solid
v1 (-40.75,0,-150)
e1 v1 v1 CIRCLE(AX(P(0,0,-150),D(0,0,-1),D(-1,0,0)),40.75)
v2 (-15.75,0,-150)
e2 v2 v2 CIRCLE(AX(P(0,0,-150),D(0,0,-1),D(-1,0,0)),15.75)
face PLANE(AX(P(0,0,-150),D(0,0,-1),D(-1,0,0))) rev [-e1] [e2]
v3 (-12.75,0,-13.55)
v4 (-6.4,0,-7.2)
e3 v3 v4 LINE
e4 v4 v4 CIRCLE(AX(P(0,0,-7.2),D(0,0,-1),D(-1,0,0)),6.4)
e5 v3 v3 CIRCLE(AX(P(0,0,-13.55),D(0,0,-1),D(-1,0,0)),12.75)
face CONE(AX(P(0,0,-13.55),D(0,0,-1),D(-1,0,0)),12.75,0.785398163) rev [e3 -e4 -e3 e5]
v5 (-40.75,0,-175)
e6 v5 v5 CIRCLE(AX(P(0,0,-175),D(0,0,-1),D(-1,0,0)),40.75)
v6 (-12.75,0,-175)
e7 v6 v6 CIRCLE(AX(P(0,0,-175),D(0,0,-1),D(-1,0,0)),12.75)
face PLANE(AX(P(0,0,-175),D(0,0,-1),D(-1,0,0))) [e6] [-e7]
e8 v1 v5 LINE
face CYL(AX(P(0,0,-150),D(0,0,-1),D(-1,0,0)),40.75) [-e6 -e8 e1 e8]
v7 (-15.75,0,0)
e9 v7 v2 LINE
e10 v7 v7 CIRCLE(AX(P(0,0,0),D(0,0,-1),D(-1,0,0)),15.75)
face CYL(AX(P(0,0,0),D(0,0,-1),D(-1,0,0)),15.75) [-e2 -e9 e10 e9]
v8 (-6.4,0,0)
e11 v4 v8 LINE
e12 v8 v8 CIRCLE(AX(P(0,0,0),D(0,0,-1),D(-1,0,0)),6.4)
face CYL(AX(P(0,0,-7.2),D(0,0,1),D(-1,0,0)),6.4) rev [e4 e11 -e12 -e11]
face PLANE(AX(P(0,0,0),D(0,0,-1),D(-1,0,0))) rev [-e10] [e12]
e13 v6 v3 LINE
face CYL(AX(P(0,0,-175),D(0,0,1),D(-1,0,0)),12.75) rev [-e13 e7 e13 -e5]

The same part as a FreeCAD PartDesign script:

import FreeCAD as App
import Part
import Sketcher

V = App.Vector
Q = App.Units.Quantity

doc = App.newDocument("Part")
params = doc.addObject("Spreadsheet::Sheet", "Params")
for row, (alias, value) in enumerate([
    ("sketch1_width", "25 mm"),
    ("sketch1_width2", "28 mm"),
    ("sketch1_height", "150 mm"),
    ("sketch1_height2", "7.2 mm"),
    ("sketch1_width3", "9.35 mm"),
    ("revolution_angle", "360 deg"),
], start=1):
    params.set(f"A{row}", alias)
    params.set(f"B{row}", "=" + value)
    params.setAlias(f"B{row}", alias)

body = doc.addObject("PartDesign::Body", "Body")

sketch1 = body.newObject("Sketcher::SketchObject", "Sketch")
sketch1.AttachmentSupport = (doc.getObject("XZ_Plane"), [""])
sketch1.MapMode = "FlatFace"
sketch1.addGeometry([
    Part.LineSegment(V(16, 150, 0), V(41, 150, 0)),
    Part.LineSegment(V(41, 150, 0), V(41, 175, 0)),
    Part.LineSegment(V(41, 175, 0), V(13, 175, 0)),
    Part.LineSegment(V(13, 175, 0), V(13, 14, 0)),
    Part.LineSegment(V(13, 14, 0), V(6, 7, 0)),
    Part.LineSegment(V(6, 7, 0), V(6, 0, 0)),
    Part.LineSegment(V(6, 0, 0), V(16, 0, 0)),
    Part.LineSegment(V(16, 0, 0), V(16, 150, 0)),
], False)
sketch1.addConstraint([
    Sketcher.Constraint("Coincident", 0, 2, 1, 1),
    Sketcher.Constraint("Coincident", 1, 2, 2, 1),
    Sketcher.Constraint("Coincident", 2, 2, 3, 1),
    Sketcher.Constraint("Coincident", 3, 2, 4, 1),
    Sketcher.Constraint("Coincident", 4, 2, 5, 1),
    Sketcher.Constraint("Coincident", 5, 2, 6, 1),
    Sketcher.Constraint("Coincident", 6, 2, 7, 1),
    Sketcher.Constraint("Coincident", 7, 2, 0, 1),
    Sketcher.Constraint("Horizontal", 0),
    Sketcher.Constraint("Vertical", 1),
    Sketcher.Constraint("Horizontal", 2),
    Sketcher.Constraint("Vertical", 3),
    Sketcher.Constraint("Vertical", 5),
    Sketcher.Constraint("Horizontal", 6),
    Sketcher.Constraint("Vertical", 7),
    Sketcher.Constraint("PointOnObject", 5, 2, -1),
    Sketcher.Constraint("Equal", 0, 1),
    Sketcher.Constraint("DistanceX", 0, 1, 0, 2, 25.0),
    Sketcher.Constraint("DistanceX", 2, 2, 2, 1, 28.0),
    Sketcher.Constraint("DistanceY", 7, 1, 7, 2, 150.0),
    Sketcher.Constraint("Angle", 4, Q("-135 deg")),
    Sketcher.Constraint("DistanceY", 5, 2, 5, 1, 7.2),
    Sketcher.Constraint("DistanceX", 6, 1, 6, 2, 9.35),
    Sketcher.Constraint("DistanceX", -1, 1, 4, 2, 6.4),
])
sketch1.setExpression("Constraints[17]", "Params.sketch1_width")
sketch1.setExpression("Constraints[18]", "Params.sketch1_width2")
sketch1.setExpression("Constraints[19]", "Params.sketch1_height")
sketch1.setExpression("Constraints[21]", "Params.sketch1_height2")
sketch1.setExpression("Constraints[22]", "Params.sketch1_width3")
revolution = body.newObject("PartDesign::Revolution", "Revolution")
revolution.Profile = sketch1
revolution.ReferenceAxis = (sketch1, ["V_Axis"])
revolution.setExpression("Angle", "Params.revolution_angle")
body2 = doc.addObject("PartDesign::Body", "Body001")
doc.recompute()

body.Placement = App.Placement(V(0, 0, 0), App.Rotation(V(0, 1, 0), 180))
boolean = body2.newObject("PartDesign::Boolean", "Boolean")
boolean.Type = "Fuse"
boolean.addObjects([body])

doc.recompute()
